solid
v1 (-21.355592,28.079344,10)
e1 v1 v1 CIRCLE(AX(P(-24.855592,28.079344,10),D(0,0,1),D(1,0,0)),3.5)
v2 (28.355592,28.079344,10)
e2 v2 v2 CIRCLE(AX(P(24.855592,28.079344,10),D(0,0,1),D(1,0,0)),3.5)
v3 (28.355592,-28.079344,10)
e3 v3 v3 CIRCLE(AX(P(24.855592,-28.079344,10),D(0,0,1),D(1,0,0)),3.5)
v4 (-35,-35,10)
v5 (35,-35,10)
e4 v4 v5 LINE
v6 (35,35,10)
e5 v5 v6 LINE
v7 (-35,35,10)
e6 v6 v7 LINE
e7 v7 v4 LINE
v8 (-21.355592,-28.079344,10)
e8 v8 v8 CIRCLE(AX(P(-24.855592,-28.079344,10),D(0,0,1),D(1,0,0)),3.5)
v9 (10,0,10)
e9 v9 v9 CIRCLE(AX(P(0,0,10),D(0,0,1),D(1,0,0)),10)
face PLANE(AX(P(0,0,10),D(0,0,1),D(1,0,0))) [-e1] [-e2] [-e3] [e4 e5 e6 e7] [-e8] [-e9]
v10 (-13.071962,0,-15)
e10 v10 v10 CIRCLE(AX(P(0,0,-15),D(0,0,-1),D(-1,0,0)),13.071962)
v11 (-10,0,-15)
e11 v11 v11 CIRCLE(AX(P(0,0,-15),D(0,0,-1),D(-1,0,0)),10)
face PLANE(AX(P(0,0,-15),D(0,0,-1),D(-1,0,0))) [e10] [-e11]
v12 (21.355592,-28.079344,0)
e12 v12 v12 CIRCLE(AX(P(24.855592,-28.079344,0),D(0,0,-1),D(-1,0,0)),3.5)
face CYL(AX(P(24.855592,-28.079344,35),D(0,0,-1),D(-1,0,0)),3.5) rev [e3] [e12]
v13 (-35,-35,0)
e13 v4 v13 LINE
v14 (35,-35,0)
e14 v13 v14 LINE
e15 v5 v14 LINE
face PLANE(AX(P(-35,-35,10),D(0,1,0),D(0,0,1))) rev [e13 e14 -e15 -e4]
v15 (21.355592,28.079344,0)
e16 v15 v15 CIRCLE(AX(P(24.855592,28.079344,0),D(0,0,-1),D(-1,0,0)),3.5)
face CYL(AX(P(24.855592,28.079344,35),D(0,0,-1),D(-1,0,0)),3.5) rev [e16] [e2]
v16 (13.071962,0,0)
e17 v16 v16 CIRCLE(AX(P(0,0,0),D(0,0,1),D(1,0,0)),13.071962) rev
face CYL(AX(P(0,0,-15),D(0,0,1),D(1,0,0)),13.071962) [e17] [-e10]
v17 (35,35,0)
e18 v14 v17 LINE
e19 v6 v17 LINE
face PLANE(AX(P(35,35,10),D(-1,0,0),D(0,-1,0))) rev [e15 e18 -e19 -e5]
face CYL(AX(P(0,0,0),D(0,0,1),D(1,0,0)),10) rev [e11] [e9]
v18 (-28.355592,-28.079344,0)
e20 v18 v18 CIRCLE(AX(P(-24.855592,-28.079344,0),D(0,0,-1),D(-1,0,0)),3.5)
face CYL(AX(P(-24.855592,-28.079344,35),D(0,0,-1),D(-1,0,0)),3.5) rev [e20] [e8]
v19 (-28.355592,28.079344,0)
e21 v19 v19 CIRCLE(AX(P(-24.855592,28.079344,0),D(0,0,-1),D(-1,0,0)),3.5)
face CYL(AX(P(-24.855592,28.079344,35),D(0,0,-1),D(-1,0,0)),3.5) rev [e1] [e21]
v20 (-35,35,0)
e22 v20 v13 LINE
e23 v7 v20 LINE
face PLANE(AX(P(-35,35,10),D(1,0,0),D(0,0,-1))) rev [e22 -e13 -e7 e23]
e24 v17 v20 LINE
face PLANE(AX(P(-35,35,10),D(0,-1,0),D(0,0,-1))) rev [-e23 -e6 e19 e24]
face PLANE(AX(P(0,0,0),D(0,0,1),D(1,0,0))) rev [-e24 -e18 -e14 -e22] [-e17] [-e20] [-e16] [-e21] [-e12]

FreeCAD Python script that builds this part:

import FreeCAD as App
import Part
import Sketcher

doc = App.newDocument("Part")
body = doc.addObject("PartDesign::Body", "Body")

# Sketch on XY plane
sketch1 = body.newObject("Sketcher::SketchObject", "Sketch")
sketch1.AttachmentSupport = (doc.getObject("XY_Plane"), [""])
sketch1.MapMode = "FlatFace"
sketch1.addGeometry([
    Part.LineSegment(App.Vector(-35, 35, 0), App.Vector(-35, -35, 0)),
    Part.LineSegment(App.Vector(-35, -35, 0), App.Vector(35, -35, 0)),
    Part.LineSegment(App.Vector(35, -35, 0), App.Vector(35, 35, 0)),
    Part.LineSegment(App.Vector(35, 35, 0), App.Vector(-35, 35, 0)),
], False)
sketch1.addConstraint([
    Sketcher.Constraint("Coincident", 0, 2, 1, 1),
    Sketcher.Constraint("Coincident", 1, 2, 2, 1),
    Sketcher.Constraint("Coincident", 2, 2, 3, 1),
    Sketcher.Constraint("Coincident", 3, 2, 0, 1),
    Sketcher.Constraint("Vertical", 0),
    Sketcher.Constraint("Horizontal", 1),
    Sketcher.Constraint("Vertical", 2),
    Sketcher.Constraint("Horizontal", 3),
    Sketcher.Constraint("Symmetric", 0, 2, 2, 2, -1, 1),
    Sketcher.Constraint("Equal", 3, 0),
    Sketcher.Constraint("DistanceX", 1, 1, 1, 2, 70.0),
])
pad1 = body.newObject("PartDesign::Pad", "Pad")
pad1.Profile = sketch1
pad1.Length = 10

# Sketch on XY plane
sketch2 = body.newObject("Sketcher::SketchObject", "Sketch001")
sketch2.AttachmentSupport = (doc.getObject("XY_Plane"), [""])
sketch2.MapMode = "FlatFace"
sketch2.AttachmentOffset = App.Placement(App.Vector(0, 0, 10), App.Rotation())
sketch2.addGeometry(Part.Circle(App.Vector(0, 0, 0), App.Vector(0, 0, 1), 10), False)
sketch2.addConstraint([
    Sketcher.Constraint("Coincident", 0, 3, -1, 1),
    Sketcher.Constraint("Diameter", 0, 20.0),
])
pocket1 = body.newObject("PartDesign::Pocket", "Pocket")
pocket1.Profile = sketch2
pocket1.Length = 10

# Sketch on XY plane
sketch3 = body.newObject("Sketcher::SketchObject", "Sketch002")
sketch3.AttachmentSupport = (doc.getObject("XY_Plane"), [""])
sketch3.MapMode = "FlatFace"
sketch3.addGeometry([
    Part.Circle(App.Vector(24.855592, 28.079344, 0), App.Vector(0, 0, 1), 3.5),
    Part.Circle(App.Vector(-24.855592, 28.079344, 0), App.Vector(0, 0, 1), 3.5),
    Part.Circle(App.Vector(-24.855592, -28.079344, 0), App.Vector(0, 0, 1), 3.5),
    Part.Circle(App.Vector(24.855592, -28.079344, 0), App.Vector(0, 0, 1), 3.5),
], False)
sketch3.addConstraint([
    Sketcher.Constraint("Equal", 0, 1),
    Sketcher.Constraint("Equal", 1, 2),
    Sketcher.Constraint("Equal", 2, 3),
    Sketcher.Constraint("Symmetric", 0, 3, 2, 3, -1, 1),
    Sketcher.Constraint("Symmetric", 1, 3, 3, 3, -1, 1),
    Sketcher.Constraint("Symmetric", 0, 3, 1, 3, -2),
    Sketcher.Constraint("Diameter", 0, 7.0),
    Sketcher.Constraint("DistanceX", -1, 1, 0, 3, 24.855592),
    Sketcher.Constraint("DistanceY", -1, 1, 0, 3, 28.079344),
])
pocket2 = body.newObject("PartDesign::Pocket", "Pocket001")
pocket2.Profile = sketch3
pocket2.Length = 35
pocket2.Reversed = True

# Sketch on XY plane
sketch4 = body.newObject("Sketcher::SketchObject", "Sketch003")
sketch4.AttachmentSupport = (doc.getObject("XY_Plane"), [""])
sketch4.MapMode = "FlatFace"
sketch4.addGeometry([
    Part.Circle(App.Vector(0, 0, 0), App.Vector(0, 0, 1), 13.071962),
    Part.Circle(App.Vector(0, 0, 0), App.Vector(0, 0, 1), 10),
], False)
sketch4.addConstraint([
    Sketcher.Constraint("Coincident", 0, 3, -1, 1),
    Sketcher.Constraint("Coincident", 1, 3, -1, 1),
    Sketcher.Constraint("Diameter", 1, 20.0),
    Sketcher.Constraint("Diameter", 0, 26.143924),
])
pad2 = body.newObject("PartDesign::Pad", "Pad001")
pad2.Profile = sketch4
pad2.Length = 15
pad2.Reversed = True

doc.recompute()
